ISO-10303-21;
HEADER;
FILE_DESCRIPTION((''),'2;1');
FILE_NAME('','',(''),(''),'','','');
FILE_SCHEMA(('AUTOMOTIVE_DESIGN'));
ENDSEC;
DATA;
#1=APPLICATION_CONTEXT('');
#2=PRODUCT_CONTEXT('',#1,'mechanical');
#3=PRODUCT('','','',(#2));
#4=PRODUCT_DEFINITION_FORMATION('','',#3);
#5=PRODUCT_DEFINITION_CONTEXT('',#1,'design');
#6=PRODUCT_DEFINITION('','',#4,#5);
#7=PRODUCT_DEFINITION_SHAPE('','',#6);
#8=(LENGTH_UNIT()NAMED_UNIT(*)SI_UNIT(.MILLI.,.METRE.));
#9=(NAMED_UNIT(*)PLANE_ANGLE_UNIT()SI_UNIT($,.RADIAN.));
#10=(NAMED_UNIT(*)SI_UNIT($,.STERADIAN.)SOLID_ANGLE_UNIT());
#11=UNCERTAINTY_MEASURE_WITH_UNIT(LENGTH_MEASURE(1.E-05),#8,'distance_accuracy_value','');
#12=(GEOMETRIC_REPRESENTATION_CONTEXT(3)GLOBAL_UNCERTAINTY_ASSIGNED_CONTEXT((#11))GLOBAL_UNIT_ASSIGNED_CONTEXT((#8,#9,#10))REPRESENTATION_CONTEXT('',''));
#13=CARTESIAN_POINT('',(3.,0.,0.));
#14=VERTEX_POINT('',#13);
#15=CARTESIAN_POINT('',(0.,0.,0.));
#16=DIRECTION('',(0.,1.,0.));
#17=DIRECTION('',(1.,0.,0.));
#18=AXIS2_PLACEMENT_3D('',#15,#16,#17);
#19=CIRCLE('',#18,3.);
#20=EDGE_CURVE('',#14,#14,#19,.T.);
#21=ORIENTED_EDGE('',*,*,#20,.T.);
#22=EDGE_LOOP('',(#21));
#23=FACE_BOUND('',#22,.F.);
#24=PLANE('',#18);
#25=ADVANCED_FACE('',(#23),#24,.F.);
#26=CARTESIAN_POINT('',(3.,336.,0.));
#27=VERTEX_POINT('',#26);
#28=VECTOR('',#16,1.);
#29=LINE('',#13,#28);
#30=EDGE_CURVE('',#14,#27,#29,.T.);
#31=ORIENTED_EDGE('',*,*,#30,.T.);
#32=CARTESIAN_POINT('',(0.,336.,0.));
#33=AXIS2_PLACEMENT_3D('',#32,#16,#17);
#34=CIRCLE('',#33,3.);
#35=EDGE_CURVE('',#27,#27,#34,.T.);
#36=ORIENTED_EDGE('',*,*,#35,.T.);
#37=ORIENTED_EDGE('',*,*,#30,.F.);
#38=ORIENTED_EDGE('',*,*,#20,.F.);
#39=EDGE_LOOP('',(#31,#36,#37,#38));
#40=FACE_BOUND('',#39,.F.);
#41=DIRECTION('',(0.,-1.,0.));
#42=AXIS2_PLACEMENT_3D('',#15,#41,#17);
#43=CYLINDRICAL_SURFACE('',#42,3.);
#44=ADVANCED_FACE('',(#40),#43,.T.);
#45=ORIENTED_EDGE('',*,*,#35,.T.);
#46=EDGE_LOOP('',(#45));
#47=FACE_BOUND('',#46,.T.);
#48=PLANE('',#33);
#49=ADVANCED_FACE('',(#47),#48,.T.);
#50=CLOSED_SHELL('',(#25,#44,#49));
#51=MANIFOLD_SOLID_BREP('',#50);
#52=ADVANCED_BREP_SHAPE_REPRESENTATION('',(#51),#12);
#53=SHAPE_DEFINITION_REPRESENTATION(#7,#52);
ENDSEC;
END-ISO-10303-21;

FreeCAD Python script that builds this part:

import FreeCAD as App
import Part
import Sketcher
from FreeCAD import Vector
Q = App.Units.Quantity

doc = App.newDocument("Part")
body = doc.addObject("PartDesign::Body", "Body")

# Sketch on XZ plane
sketch1 = body.newObject("Sketcher::SketchObject", "Sketch")
sketch1.AttachmentSupport = (doc.getObject("XZ_Plane"), [""])
sketch1.MapMode = "FlatFace"
sketch1.addGeometry(Part.Circle(Vector(0, 0, 0), Vector(0, 0, 1), 3), False)
sketch1.addConstraint([
    Sketcher.Constraint("Coincident", 0, 3, -1, 1),
    Sketcher.Constraint("Diameter", 0, Q("6 mm")),
])
pad1 = body.newObject("PartDesign::Pad", "Pad")
pad1.Profile = sketch1
pad1.Length = 336
pad1.Reversed = True

doc.recompute()
